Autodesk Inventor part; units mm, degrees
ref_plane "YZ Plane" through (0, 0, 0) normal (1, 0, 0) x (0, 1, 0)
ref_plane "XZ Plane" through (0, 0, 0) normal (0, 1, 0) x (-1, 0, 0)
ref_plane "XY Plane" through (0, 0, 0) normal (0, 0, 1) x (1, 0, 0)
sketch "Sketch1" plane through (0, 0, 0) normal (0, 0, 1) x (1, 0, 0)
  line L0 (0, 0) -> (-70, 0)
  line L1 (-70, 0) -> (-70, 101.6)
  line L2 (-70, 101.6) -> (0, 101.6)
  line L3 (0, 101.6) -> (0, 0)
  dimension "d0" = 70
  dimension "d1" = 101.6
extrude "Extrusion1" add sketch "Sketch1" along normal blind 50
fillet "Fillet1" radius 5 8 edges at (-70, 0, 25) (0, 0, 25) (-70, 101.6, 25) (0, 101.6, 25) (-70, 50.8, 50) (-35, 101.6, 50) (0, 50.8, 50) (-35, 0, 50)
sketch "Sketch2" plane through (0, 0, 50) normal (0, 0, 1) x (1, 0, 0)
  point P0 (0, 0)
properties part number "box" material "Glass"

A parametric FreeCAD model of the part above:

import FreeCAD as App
import Part
import Sketcher
from FreeCAD import Vector
Q = App.Units.Quantity


def edges_at(feature, points):
    """Names of the edges that pass closest to the given points."""
    edges = feature.Shape.Edges
    near = lambda p: min(range(len(edges)), key=lambda i: edges[i].distToShape(Part.Vertex(*p))[0])
    return sorted({f"Edge{near(p) + 1}" for p in points})

doc = App.newDocument("Part")
params = doc.addObject("Spreadsheet::Sheet", "Params")
for row, (alias, value) in enumerate([
    ("sketch1_width", "70 mm"),
    ("sketch1_height", "101.6 mm"),
    ("pad1_length", "50 mm"),
    ("fillet_radius", "5 mm"),
], start=1):
    params.set(f"A{row}", alias)
    params.set(f"B{row}", "=" + value)
    params.setAlias(f"B{row}", alias)

body = doc.addObject("PartDesign::Body", "Body")

# Sketch on XY plane
sketch1 = doc.addObject("Sketcher::SketchObject", "Sketch")
body.addObject(sketch1)
sketch1.AttachmentSupport = (doc.XY_Plane, [""])
sketch1.MapMode = "FlatFace"
sketch1.addGeometry([
    Part.LineSegment(Vector(-70, 0, 0), Vector(0, 0, 0)),
    Part.LineSegment(Vector(0, 0, 0), Vector(0, 101.6, 0)),
    Part.LineSegment(Vector(0, 101.6, 0), Vector(-70, 101.6, 0)),
    Part.LineSegment(Vector(-70, 101.6, 0), Vector(-70, 0, 0)),
], False)
sketch1.addConstraint([
    Sketcher.Constraint("Coincident", 0, 2, 1, 1),
    Sketcher.Constraint("Coincident", 1, 2, 2, 1),
    Sketcher.Constraint("Coincident", 2, 2, 3, 1),
    Sketcher.Constraint("Coincident", 3, 2, 0, 1),
    Sketcher.Constraint("Horizontal", 0),
    Sketcher.Constraint("Vertical", 1),
    Sketcher.Constraint("Horizontal", 2),
    Sketcher.Constraint("Vertical", 3),
    Sketcher.Constraint("Coincident", 0, 2, -1, 1),
    Sketcher.Constraint("DistanceX", 0, 1, 0, 2, Q("70 mm")),
    Sketcher.Constraint("DistanceY", 1, 1, 1, 2, Q("101.6 mm")),
])
sketch1.setExpression("Constraints[9]", "Params.sketch1_width")
sketch1.setExpression("Constraints[10]", "Params.sketch1_height")
pad1 = doc.addObject("PartDesign::Pad", "Pad")
body.addObject(pad1)
pad1.Profile = sketch1
pad1.setExpression("Length", "Params.pad1_length")
doc.recompute()

fillet = doc.addObject("PartDesign::Fillet", "Fillet")
body.addObject(fillet)
fillet.Base = (pad1, edges_at(pad1, [
    (-70, 0, 25),
    (0, 0, 25),
    (-70, 101.6, 25),
    (0, 101.6, 25),
    (-70, 50.8, 50),
    (-35, 101.6, 50),
    (0, 50.8, 50),
    (-35, 0, 50),
]))
fillet.setExpression("Radius", "Params.fillet_radius")

doc.recompute()
